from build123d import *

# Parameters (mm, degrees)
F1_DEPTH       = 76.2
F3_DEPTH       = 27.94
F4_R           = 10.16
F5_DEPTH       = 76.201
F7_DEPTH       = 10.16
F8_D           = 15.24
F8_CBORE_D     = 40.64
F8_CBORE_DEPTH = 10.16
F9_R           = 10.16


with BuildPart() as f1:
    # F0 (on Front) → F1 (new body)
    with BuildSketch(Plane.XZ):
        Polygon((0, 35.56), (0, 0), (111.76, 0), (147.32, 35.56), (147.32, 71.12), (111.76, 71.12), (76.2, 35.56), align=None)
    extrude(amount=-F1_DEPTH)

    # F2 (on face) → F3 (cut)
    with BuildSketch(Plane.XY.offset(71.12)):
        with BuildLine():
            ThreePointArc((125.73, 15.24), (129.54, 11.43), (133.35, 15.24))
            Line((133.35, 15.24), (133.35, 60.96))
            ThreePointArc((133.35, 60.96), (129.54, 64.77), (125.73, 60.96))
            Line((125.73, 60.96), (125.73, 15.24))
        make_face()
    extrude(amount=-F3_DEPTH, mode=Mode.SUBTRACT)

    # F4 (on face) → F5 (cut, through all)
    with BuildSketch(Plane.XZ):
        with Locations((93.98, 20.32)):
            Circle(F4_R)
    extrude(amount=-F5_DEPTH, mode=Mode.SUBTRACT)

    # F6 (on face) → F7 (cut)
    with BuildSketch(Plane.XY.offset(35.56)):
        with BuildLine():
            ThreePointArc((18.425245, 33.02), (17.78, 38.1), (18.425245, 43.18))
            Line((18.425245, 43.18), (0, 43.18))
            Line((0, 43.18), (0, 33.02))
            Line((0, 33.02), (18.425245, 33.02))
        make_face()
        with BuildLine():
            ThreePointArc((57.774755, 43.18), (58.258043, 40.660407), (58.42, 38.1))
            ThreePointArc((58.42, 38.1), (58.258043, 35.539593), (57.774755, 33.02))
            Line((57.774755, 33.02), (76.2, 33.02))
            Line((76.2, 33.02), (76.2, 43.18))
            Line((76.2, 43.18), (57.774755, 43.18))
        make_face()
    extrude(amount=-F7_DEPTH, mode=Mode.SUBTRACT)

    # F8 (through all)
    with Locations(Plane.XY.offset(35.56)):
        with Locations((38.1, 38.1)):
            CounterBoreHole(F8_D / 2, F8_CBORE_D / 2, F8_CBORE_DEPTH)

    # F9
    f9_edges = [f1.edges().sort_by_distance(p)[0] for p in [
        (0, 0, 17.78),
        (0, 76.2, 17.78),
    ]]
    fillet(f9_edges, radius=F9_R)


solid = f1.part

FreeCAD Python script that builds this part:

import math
import FreeCAD as App
import Part
import Sketcher
Q = App.Units.Quantity


def edges_at(feature, points):
    """Names of the edges that pass closest to the given points."""
    edges = feature.Shape.Edges
    near = lambda p: min(range(len(edges)), key=lambda i: edges[i].distToShape(Part.Vertex(*p))[0])
    return sorted({f"Edge{near(p) + 1}" for p in points})


def add_polygon(sketch, points):
    """Adds a closed chain of lines whose ends are joined by coincident constraints."""
    first, n = sketch.GeometryCount, len(points)
    for a, b in zip(points, points[1:] + points[:1]):
        sketch.addGeometry(Part.LineSegment(App.Vector(*a, 0), App.Vector(*b, 0)), False)
    for i in range(n):
        sketch.addConstraint(Sketcher.Constraint("Coincident", first + i, 2, first + (i + 1) % n, 1))

doc = App.newDocument("Part")
body = doc.addObject("PartDesign::Body", "Body")

# Sketch on XZ plane
sketch1 = doc.addObject("Sketcher::SketchObject", "Sketch")
body.addObject(sketch1)
sketch1.AttachmentSupport = (doc.XZ_Plane, [""])
sketch1.MapMode = "FlatFace"
add_polygon(sketch1, [(0, 36), (0, 0), (112, 0), (147, 36), (147, 71), (112, 71), (76, 36)])  # lines 0-6
sketch1.addConstraint([
    Sketcher.Constraint("Vertical", 0),
    Sketcher.Constraint("Horizontal", 1),
    Sketcher.Constraint("Vertical", 3),
    Sketcher.Constraint("Horizontal", 4),
    Sketcher.Constraint("Horizontal", 6),
    Sketcher.Constraint("Coincident", 0, 2, -1, 1),
    Sketcher.Constraint("Parallel", 2, 5),
    Sketcher.Constraint("Horizontal", 2, 2, 5, 2),
    Sketcher.Constraint("Vertical", 1, 2, 4, 2),
    Sketcher.Constraint("Equal", 4, 0),
    Sketcher.Constraint("Equal", 0, 3),
    Sketcher.Constraint("DistanceX", 6, 2, 6, 1, Q("3 in")),
    Sketcher.Constraint("DistanceX", 1, 1, 1, 2, Q("4.4 in")),
])
pad1 = doc.addObject("PartDesign::Pad", "Pad")
body.addObject(pad1)
pad1.Profile = sketch1
pad1.Length = Q("3 in")
pad1.Reversed = True

# Sketch on XY plane
sketch2 = doc.addObject("Sketcher::SketchObject", "Sketch001")
body.addObject(sketch2)
sketch2.AttachmentSupport = (doc.XY_Plane, [""])
sketch2.MapMode = "FlatFace"
sketch2.AttachmentOffset = App.Placement(App.Vector(0, 0, 2.8 * 25.4), App.Rotation())
sketch2.addGeometry([
    Part.ArcOfCircle(Part.Circle(App.Vector(129.5, 15.2, 0), App.Vector(0, 0, 1), 3.8), math.radians(180), math.radians(360)),
    Part.LineSegment(App.Vector(133.3, 15.2, 0), App.Vector(133.3, 61, 0)),
    Part.ArcOfCircle(Part.Circle(App.Vector(129.5, 61, 0), App.Vector(0, 0, 1), 3.8), math.radians(0), math.radians(180)),
    Part.LineSegment(App.Vector(125.7, 61, 0), App.Vector(125.7, 15.2, 0)),
], False)
sketch2.addConstraint([
    Sketcher.Constraint("Tangent", 0, 2, 1, 1),
    Sketcher.Constraint("Tangent", 1, 2, 2, 1),
    Sketcher.Constraint("Tangent", 2, 2, 3, 1),
    Sketcher.Constraint("Tangent", 3, 2, 0, 1),
    Sketcher.Constraint("Vertical", 1),
    Sketcher.Constraint("Vertical", 3),
    Sketcher.Constraint("Radius", 0, Q("0.15 in")),
    Sketcher.Constraint("DistanceY", 1, 1, 1, 2, Q("1.8 in")),
    Sketcher.Constraint("DistanceX", -1, 1, 0, 3, Q("5.1 in")),
    Sketcher.Constraint("DistanceY", -1, 1, 0, 3, Q("0.6 in")),
])
pocket1 = doc.addObject("PartDesign::Pocket", "Pocket")
body.addObject(pocket1)
pocket1.Profile = sketch2
pocket1.Length = Q("1.1 in")

# Sketch on XZ plane
sketch3 = doc.addObject("Sketcher::SketchObject", "Sketch002")
body.addObject(sketch3)
sketch3.AttachmentSupport = (doc.XZ_Plane, [""])
sketch3.MapMode = "FlatFace"
sketch3.addGeometry(Part.Circle(App.Vector(94, 20, 0), App.Vector(0, 0, 1), 10), False)
sketch3.addConstraint([
    Sketcher.Constraint("Diameter", 0, Q("0.8 in")),
    Sketcher.Constraint("DistanceX", -1, 1, 0, 3, Q("3.7 in")),
    Sketcher.Constraint("DistanceY", -1, 1, 0, 3, Q("0.8 in")),
])
pocket2 = doc.addObject("PartDesign::Pocket", "Pocket001")
body.addObject(pocket2)
pocket2.Profile = sketch3
pocket2.Type = "ThroughAll"

# Sketch on XY plane
sketch4 = doc.addObject("Sketcher::SketchObject", "Sketch003")
body.addObject(sketch4)
sketch4.AttachmentSupport = (doc.XY_Plane, [""])
sketch4.MapMode = "FlatFace"
sketch4.AttachmentOffset = App.Placement(App.Vector(0, 0, 1.4 * 25.4), App.Rotation())
sketch4.addGeometry([
    Part.ArcOfCircle(Part.Circle(App.Vector(38, 38, 0), App.Vector(0, 0, 1), 20), math.radians(166), math.radians(194)),  # 0
    Part.LineSegment(App.Vector(18, 43, 0), App.Vector(0, 43, 0)),  # 1
    Part.LineSegment(App.Vector(0, 43, 0), App.Vector(0, 33, 0)),  # 2
    Part.LineSegment(App.Vector(0, 33, 0), App.Vector(18, 33, 0)),  # 3
    Part.ArcOfCircle(Part.Circle(App.Vector(38, 38, 0), App.Vector(0, 0, 1), 20), math.radians(0), math.radians(14.48)),  # 4
    Part.ArcOfCircle(Part.Circle(App.Vector(38, 38, 0), App.Vector(0, 0, 1), 20), math.radians(-14.48), math.radians(0)),  # 5
    Part.LineSegment(App.Vector(58, 33, 0), App.Vector(76, 33, 0)),  # 6
    Part.LineSegment(App.Vector(76, 33, 0), App.Vector(76, 43, 0)),  # 7
    Part.LineSegment(App.Vector(76, 43, 0), App.Vector(58, 43, 0)),  # 8
], False)
sketch4.addConstraint([
    Sketcher.Constraint("Coincident", 0, 1, 1, 1),
    Sketcher.Constraint("Coincident", 1, 2, 2, 1),
    Sketcher.Constraint("Coincident", 2, 2, 3, 1),
    Sketcher.Constraint("Coincident", 3, 2, 0, 2),
    Sketcher.Constraint("Tangent", 4, 1, 5, 2),
    Sketcher.Constraint("Coincident", 5, 1, 6, 1),
    Sketcher.Constraint("Coincident", 6, 2, 7, 1),
    Sketcher.Constraint("Coincident", 7, 2, 8, 1),
    Sketcher.Constraint("Coincident", 8, 2, 4, 2),
    Sketcher.Constraint("Horizontal", 1),
    Sketcher.Constraint("Vertical", 2),
    Sketcher.Constraint("Horizontal", 3),
    Sketcher.Constraint("Horizontal", 6),
    Sketcher.Constraint("Vertical", 7),
    Sketcher.Constraint("Horizontal", 8),
    Sketcher.Constraint("Equal", 4, 5),
    Sketcher.Constraint("PointOnObject", 1, 2, -2),
    Sketcher.Constraint("Horizontal", 0, 3, 4, 1),
    Sketcher.Constraint("Horizontal", 3, 2, 5, 1),
    Sketcher.Constraint("Horizontal", 1, 2, 7, 2),
    Sketcher.Constraint("Vertical", 0, 1, 3, 2),
    Sketcher.Constraint("Vertical", 5, 1, 8, 2),
    Sketcher.Constraint("Equal", 3, 6),
    Sketcher.Constraint("DistanceY", 2, 2, 2, 1, Q("0.4 in")),
    Sketcher.Constraint("DistanceX", -1, 1, 6, 2, Q("3 in")),
    Sketcher.Constraint("DistanceY", -1, 1, 0, 3, Q("1.5 in")),
    Sketcher.Constraint("DistanceX", -1, 1, 4, 1, Q("2.3 in")),
    Sketcher.Constraint("Radius", 0, 20.319988),
    Sketcher.Constraint("Radius", 4, 20.320032),
])
pocket3 = doc.addObject("PartDesign::Pocket", "Pocket002")
body.addObject(pocket3)
pocket3.Profile = sketch4
pocket3.Length = Q("0.4 in")

# Sketch on XY plane
sketch5 = doc.addObject("Sketcher::SketchObject", "Sketch004")
body.addObject(sketch5)
sketch5.AttachmentSupport = (doc.XY_Plane, [""])
sketch5.MapMode = "FlatFace"
sketch5.AttachmentOffset = App.Placement(App.Vector(0, 0, 1.4 * 25.4), App.Rotation())
sketch5.addGeometry(Part.Circle(App.Vector(38, 38, 0), App.Vector(0, 0, 1), 8), False)
sketch5.addConstraint([
    Sketcher.Constraint("Diameter", 0, Q("0.6 in")),
    Sketcher.Constraint("DistanceX", -1, 1, 0, 3, Q("1.5 in")),
    Sketcher.Constraint("DistanceY", -1, 1, 0, 3, Q("1.5 in")),
])
doc.recompute()
hole = doc.addObject("PartDesign::Hole", "Hole")
body.addObject(hole)
hole.Profile = sketch5
hole.ThreadType = "None"
hole.Diameter = Q("0.6 in")
hole.DepthType = "ThroughAll"
hole.HoleCutType = "Counterbore"
hole.HoleCutDiameter = Q("1.6 in")
hole.HoleCutDepth = Q("0.4 in")
doc.recompute()

fillet = doc.addObject("PartDesign::Fillet", "Fillet")
body.addObject(fillet)
fillet.Base = (hole, edges_at(hole, [(0, 0, 17.78), (0, 76.2, 17.78)]))
fillet.Radius = Q("0.4 in")

doc.recompute()
